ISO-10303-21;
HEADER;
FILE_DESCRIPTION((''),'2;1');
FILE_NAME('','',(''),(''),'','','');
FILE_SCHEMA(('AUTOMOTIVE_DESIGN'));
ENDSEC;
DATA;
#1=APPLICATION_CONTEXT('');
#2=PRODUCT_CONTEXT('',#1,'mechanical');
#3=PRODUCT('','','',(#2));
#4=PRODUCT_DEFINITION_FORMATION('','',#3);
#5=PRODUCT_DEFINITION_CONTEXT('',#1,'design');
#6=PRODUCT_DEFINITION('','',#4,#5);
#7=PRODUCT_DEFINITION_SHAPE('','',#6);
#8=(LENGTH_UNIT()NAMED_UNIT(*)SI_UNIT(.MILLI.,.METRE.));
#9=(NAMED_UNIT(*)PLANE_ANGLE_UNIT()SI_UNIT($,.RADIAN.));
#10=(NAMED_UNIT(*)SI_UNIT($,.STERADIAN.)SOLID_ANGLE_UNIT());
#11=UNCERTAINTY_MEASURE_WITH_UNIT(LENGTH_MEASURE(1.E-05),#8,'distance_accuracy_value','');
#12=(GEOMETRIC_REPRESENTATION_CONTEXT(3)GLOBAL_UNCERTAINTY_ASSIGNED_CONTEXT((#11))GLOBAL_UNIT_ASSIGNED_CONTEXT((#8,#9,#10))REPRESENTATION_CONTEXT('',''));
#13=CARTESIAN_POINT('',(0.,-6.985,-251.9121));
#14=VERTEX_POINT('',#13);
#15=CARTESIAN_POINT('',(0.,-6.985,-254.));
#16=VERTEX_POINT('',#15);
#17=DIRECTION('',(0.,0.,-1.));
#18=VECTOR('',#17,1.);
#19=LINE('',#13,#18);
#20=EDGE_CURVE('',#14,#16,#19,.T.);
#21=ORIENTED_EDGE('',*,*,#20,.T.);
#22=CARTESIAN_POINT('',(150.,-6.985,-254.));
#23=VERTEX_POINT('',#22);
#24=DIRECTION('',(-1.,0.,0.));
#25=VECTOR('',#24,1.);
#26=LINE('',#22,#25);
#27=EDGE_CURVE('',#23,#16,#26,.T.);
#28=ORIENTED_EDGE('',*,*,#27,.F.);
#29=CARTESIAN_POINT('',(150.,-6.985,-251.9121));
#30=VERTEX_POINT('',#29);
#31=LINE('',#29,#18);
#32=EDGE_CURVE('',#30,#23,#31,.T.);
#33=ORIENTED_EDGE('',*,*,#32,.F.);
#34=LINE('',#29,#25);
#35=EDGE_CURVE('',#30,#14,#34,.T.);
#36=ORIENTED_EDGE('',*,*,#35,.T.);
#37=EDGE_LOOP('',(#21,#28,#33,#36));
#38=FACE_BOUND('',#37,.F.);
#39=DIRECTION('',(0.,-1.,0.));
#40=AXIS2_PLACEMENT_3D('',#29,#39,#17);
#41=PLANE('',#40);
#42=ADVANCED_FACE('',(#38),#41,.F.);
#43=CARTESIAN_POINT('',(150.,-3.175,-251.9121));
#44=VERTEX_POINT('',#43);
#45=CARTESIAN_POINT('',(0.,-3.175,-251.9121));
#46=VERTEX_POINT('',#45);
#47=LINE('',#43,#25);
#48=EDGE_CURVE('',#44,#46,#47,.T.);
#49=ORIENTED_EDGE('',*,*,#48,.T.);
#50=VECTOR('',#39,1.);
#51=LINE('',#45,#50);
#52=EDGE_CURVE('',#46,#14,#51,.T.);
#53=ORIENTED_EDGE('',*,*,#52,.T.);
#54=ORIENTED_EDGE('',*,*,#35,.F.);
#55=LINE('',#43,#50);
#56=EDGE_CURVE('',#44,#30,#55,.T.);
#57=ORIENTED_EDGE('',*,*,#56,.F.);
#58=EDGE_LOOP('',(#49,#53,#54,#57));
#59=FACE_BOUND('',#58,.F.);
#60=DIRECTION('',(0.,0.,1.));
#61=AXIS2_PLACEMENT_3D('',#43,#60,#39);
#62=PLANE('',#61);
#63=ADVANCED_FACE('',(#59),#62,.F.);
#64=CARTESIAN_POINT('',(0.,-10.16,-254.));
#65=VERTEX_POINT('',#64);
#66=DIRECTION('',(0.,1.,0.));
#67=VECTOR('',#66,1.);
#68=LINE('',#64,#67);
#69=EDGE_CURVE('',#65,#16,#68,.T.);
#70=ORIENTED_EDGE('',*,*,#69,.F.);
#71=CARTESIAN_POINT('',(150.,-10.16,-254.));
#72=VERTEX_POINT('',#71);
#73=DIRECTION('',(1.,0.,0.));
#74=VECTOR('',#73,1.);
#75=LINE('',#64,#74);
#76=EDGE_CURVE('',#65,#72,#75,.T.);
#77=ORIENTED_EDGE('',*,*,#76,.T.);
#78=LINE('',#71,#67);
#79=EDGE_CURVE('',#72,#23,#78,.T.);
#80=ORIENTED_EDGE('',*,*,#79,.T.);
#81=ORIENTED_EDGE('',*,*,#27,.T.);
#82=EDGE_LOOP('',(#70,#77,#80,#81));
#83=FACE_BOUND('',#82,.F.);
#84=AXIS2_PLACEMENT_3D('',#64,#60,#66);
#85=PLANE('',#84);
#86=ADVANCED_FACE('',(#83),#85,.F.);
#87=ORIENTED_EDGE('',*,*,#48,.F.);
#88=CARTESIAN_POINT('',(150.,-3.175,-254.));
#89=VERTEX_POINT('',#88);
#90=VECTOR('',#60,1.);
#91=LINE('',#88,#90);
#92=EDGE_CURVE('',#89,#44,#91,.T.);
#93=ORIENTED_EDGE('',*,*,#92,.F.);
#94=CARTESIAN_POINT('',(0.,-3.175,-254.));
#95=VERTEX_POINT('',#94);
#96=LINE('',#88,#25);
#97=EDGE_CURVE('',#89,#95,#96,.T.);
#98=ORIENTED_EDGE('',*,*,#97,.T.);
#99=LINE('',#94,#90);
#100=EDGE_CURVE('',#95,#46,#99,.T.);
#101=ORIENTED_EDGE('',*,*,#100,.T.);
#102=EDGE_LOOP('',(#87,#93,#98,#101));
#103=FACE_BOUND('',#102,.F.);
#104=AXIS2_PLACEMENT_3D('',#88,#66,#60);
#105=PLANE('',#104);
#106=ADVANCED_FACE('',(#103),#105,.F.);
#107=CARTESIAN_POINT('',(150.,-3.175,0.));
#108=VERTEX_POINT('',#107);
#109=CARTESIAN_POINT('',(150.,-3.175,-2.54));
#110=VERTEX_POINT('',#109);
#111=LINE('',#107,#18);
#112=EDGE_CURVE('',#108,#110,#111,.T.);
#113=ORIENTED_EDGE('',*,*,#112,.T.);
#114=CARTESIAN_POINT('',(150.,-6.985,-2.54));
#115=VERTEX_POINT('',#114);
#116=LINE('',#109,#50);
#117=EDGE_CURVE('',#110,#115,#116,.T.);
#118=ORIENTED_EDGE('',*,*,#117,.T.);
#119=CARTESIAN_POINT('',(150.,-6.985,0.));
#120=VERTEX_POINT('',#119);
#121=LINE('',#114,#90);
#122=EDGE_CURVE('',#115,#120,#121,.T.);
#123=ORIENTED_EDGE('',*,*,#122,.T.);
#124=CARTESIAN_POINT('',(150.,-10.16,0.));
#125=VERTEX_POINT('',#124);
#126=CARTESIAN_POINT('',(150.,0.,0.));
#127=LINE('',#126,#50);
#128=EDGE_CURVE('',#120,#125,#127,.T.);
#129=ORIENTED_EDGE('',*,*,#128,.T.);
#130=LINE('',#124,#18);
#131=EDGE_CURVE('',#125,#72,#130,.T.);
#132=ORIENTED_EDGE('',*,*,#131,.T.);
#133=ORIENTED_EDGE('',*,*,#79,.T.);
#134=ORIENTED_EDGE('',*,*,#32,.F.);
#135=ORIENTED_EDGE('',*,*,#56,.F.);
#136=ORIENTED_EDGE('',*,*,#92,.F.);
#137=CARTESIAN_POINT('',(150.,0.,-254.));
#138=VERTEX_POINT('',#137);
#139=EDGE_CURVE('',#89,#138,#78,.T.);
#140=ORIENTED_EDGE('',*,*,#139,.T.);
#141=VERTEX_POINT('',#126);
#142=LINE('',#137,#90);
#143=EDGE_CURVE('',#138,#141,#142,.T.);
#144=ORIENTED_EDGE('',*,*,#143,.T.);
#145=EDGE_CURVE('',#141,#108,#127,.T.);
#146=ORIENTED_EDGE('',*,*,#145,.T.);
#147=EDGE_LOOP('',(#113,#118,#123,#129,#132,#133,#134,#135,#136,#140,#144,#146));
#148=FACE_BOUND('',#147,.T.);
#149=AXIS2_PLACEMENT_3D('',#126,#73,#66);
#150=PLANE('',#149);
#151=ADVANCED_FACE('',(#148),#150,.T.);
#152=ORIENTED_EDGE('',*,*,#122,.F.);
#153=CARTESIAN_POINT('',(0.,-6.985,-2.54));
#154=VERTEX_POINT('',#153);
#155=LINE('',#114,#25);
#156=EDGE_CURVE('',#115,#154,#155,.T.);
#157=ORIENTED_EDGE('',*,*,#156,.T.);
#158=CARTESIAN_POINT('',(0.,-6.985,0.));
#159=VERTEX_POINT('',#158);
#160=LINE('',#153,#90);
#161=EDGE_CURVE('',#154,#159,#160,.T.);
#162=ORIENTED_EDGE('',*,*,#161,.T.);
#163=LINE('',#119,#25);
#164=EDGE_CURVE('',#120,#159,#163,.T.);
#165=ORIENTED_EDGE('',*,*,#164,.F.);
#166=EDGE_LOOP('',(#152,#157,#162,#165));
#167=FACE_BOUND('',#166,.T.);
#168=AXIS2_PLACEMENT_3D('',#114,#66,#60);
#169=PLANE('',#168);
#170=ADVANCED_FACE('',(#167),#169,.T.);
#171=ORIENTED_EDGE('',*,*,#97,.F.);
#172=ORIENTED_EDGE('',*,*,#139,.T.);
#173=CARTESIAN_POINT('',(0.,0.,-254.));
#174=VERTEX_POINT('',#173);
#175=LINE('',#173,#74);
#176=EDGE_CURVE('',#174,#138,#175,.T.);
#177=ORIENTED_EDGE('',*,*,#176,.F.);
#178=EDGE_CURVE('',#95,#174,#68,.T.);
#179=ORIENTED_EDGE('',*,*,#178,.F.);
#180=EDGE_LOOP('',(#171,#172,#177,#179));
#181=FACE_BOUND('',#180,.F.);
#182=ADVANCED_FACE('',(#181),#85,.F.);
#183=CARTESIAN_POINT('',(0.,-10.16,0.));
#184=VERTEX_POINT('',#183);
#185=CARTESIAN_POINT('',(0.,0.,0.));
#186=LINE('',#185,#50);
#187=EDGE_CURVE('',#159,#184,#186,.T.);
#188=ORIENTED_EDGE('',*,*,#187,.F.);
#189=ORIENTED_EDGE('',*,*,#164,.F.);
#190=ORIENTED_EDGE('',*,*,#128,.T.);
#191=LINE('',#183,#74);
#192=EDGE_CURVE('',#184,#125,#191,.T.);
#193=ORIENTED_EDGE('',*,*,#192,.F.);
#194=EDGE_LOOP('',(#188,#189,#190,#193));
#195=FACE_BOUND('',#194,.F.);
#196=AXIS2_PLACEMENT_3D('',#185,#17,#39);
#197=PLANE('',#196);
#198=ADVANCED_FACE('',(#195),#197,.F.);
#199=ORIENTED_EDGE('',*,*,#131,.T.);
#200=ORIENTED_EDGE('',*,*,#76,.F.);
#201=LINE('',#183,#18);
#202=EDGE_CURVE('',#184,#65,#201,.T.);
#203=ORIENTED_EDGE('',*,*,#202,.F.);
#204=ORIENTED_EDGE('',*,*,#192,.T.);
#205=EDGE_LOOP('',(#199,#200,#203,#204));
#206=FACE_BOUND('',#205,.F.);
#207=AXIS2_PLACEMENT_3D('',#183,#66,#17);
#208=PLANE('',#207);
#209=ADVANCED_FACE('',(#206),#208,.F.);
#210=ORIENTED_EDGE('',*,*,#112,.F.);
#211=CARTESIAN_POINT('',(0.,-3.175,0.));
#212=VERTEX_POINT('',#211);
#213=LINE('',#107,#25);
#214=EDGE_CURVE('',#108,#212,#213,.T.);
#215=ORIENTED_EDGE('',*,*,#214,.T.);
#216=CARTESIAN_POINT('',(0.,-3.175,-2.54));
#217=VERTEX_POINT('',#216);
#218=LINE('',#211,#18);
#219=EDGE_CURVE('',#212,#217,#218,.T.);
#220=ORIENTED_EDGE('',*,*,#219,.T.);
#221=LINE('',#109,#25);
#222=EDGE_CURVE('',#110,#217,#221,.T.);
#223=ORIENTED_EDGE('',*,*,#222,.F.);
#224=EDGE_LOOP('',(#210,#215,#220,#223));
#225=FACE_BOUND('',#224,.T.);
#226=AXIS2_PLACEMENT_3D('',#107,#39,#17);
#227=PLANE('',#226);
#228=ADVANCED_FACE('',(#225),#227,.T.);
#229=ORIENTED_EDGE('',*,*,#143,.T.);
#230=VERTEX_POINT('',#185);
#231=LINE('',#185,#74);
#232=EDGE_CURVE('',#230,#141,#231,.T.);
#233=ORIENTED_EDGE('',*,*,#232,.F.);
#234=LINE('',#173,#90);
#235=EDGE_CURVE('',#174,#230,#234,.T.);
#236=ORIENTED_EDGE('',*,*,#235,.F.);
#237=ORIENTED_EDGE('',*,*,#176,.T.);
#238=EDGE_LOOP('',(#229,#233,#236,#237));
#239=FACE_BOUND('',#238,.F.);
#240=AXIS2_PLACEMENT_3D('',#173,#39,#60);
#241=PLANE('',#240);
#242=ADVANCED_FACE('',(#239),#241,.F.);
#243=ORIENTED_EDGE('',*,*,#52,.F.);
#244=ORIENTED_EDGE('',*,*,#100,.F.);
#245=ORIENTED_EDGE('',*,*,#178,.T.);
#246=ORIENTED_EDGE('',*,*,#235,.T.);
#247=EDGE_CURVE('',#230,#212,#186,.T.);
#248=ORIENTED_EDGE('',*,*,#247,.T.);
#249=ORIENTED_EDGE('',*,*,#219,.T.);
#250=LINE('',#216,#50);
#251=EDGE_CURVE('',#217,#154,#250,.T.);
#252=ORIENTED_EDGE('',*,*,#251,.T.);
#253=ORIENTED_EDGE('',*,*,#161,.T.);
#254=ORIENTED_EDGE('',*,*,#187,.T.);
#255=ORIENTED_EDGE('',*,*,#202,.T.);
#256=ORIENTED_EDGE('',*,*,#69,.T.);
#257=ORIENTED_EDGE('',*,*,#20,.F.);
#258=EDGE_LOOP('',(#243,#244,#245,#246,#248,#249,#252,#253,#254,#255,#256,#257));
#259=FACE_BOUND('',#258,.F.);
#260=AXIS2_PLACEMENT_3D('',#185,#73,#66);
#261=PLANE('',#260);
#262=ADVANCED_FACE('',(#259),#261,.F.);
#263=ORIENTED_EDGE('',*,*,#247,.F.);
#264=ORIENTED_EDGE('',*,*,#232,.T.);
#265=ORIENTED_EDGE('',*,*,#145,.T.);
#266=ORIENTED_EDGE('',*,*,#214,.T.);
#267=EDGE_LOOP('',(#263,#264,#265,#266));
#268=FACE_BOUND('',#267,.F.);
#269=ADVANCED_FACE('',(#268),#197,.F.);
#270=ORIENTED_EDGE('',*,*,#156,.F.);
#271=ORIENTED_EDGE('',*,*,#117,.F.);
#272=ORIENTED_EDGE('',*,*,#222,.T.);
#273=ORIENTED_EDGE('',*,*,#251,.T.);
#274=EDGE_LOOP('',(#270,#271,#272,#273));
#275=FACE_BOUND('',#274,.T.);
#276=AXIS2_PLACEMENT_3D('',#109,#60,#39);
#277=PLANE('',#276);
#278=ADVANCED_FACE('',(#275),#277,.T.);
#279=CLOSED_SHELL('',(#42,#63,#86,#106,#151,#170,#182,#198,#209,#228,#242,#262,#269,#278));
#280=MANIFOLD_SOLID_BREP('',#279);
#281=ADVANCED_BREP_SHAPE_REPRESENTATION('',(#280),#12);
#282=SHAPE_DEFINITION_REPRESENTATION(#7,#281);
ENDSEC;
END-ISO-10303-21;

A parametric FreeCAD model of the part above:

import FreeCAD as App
import Part
import Sketcher
Q = App.Units.Quantity


def add_polygon(sketch, points):
    """Adds a closed chain of lines whose ends are joined by coincident constraints."""
    first, n = sketch.GeometryCount, len(points)
    for a, b in zip(points, points[1:] + points[:1]):
        sketch.addGeometry(Part.LineSegment(App.Vector(*a, 0), App.Vector(*b, 0)), False)
    for i in range(n):
        sketch.addConstraint(Sketcher.Constraint("Coincident", first + i, 2, first + (i + 1) % n, 1))

doc = App.newDocument("Part")
body = doc.addObject("PartDesign::Body", "Body")

# Sketch on YZ plane
sketch1 = body.newObject("Sketcher::SketchObject", "Sketch")
sketch1.AttachmentSupport = (doc.getObject("YZ_Plane"), [""])
sketch1.MapMode = "FlatFace"
add_polygon(sketch1, [(0, -254), (0, 0), (-10, 0), (-10, -254)])  # lines 0-3
sketch1.addConstraint([
    Sketcher.Constraint("Vertical", 0),
    Sketcher.Constraint("Horizontal", 1),
    Sketcher.Constraint("Vertical", 2),
    Sketcher.Constraint("Horizontal", 3),
    Sketcher.Constraint("Coincident", 0, 2, -1, 1),
    Sketcher.Constraint("DistanceY", 0, 1, 0, 2, Q("10 in")),
    Sketcher.Constraint("DistanceX", 1, 2, 1, 1, Q("0.4 in")),
])
pad1 = body.newObject("PartDesign::Pad", "Pad")
pad1.Profile = sketch1
pad1.Length = Q("5.9055118 in")

# Sketch on YZ plane
sketch2 = body.newObject("Sketcher::SketchObject", "Sketch001")
sketch2.AttachmentSupport = (doc.getObject("YZ_Plane"), [""])
sketch2.MapMode = "FlatFace"
sketch2.AttachmentOffset = App.Placement(App.Vector(0, 0, 5.9055118 * 25.4), App.Rotation())
add_polygon(sketch2, [(-3.2, -2.5), (-3.2, 0), (-7, 0), (-7, -2.5)])  # lines 0-3
add_polygon(sketch2, [(-7, -254), (-3.2, -254), (-3.2, -251.9), (-7, -251.9)])  # lines 4-7
sketch2.addConstraint([
    Sketcher.Constraint("Vertical", 0),
    Sketcher.Constraint("Horizontal", 1),
    Sketcher.Constraint("Vertical", 2),
    Sketcher.Constraint("Horizontal", 3),
    Sketcher.Constraint("Horizontal", 4),
    Sketcher.Constraint("Vertical", 5),
    Sketcher.Constraint("Horizontal", 6),
    Sketcher.Constraint("Vertical", 7),
    Sketcher.Constraint("PointOnObject", 0, 2, -1),
    Sketcher.Constraint("Vertical", 3, 2, 4, 2),
    Sketcher.Constraint("Vertical", 2, 2, 6, 2),
    Sketcher.Constraint("DistanceY", 0, 1, 0, 2, Q("0.1 in")),
    Sketcher.Constraint("DistanceX", 1, 2, 1, 1, Q("0.15 in")),
    Sketcher.Constraint("DistanceY", 4, 2, 3, 2, Q("9.9 in")),
    Sketcher.Constraint("DistanceY", 5, 1, 5, 2, Q("0.0822 in")),
    Sketcher.Constraint("DistanceX", 0, 2, -1, 1, Q("0.125 in")),
])
pocket1 = body.newObject("PartDesign::Pocket", "Pocket")
pocket1.Profile = sketch2
pocket1.Length = Q("5.9055118 in")

doc.recompute()
